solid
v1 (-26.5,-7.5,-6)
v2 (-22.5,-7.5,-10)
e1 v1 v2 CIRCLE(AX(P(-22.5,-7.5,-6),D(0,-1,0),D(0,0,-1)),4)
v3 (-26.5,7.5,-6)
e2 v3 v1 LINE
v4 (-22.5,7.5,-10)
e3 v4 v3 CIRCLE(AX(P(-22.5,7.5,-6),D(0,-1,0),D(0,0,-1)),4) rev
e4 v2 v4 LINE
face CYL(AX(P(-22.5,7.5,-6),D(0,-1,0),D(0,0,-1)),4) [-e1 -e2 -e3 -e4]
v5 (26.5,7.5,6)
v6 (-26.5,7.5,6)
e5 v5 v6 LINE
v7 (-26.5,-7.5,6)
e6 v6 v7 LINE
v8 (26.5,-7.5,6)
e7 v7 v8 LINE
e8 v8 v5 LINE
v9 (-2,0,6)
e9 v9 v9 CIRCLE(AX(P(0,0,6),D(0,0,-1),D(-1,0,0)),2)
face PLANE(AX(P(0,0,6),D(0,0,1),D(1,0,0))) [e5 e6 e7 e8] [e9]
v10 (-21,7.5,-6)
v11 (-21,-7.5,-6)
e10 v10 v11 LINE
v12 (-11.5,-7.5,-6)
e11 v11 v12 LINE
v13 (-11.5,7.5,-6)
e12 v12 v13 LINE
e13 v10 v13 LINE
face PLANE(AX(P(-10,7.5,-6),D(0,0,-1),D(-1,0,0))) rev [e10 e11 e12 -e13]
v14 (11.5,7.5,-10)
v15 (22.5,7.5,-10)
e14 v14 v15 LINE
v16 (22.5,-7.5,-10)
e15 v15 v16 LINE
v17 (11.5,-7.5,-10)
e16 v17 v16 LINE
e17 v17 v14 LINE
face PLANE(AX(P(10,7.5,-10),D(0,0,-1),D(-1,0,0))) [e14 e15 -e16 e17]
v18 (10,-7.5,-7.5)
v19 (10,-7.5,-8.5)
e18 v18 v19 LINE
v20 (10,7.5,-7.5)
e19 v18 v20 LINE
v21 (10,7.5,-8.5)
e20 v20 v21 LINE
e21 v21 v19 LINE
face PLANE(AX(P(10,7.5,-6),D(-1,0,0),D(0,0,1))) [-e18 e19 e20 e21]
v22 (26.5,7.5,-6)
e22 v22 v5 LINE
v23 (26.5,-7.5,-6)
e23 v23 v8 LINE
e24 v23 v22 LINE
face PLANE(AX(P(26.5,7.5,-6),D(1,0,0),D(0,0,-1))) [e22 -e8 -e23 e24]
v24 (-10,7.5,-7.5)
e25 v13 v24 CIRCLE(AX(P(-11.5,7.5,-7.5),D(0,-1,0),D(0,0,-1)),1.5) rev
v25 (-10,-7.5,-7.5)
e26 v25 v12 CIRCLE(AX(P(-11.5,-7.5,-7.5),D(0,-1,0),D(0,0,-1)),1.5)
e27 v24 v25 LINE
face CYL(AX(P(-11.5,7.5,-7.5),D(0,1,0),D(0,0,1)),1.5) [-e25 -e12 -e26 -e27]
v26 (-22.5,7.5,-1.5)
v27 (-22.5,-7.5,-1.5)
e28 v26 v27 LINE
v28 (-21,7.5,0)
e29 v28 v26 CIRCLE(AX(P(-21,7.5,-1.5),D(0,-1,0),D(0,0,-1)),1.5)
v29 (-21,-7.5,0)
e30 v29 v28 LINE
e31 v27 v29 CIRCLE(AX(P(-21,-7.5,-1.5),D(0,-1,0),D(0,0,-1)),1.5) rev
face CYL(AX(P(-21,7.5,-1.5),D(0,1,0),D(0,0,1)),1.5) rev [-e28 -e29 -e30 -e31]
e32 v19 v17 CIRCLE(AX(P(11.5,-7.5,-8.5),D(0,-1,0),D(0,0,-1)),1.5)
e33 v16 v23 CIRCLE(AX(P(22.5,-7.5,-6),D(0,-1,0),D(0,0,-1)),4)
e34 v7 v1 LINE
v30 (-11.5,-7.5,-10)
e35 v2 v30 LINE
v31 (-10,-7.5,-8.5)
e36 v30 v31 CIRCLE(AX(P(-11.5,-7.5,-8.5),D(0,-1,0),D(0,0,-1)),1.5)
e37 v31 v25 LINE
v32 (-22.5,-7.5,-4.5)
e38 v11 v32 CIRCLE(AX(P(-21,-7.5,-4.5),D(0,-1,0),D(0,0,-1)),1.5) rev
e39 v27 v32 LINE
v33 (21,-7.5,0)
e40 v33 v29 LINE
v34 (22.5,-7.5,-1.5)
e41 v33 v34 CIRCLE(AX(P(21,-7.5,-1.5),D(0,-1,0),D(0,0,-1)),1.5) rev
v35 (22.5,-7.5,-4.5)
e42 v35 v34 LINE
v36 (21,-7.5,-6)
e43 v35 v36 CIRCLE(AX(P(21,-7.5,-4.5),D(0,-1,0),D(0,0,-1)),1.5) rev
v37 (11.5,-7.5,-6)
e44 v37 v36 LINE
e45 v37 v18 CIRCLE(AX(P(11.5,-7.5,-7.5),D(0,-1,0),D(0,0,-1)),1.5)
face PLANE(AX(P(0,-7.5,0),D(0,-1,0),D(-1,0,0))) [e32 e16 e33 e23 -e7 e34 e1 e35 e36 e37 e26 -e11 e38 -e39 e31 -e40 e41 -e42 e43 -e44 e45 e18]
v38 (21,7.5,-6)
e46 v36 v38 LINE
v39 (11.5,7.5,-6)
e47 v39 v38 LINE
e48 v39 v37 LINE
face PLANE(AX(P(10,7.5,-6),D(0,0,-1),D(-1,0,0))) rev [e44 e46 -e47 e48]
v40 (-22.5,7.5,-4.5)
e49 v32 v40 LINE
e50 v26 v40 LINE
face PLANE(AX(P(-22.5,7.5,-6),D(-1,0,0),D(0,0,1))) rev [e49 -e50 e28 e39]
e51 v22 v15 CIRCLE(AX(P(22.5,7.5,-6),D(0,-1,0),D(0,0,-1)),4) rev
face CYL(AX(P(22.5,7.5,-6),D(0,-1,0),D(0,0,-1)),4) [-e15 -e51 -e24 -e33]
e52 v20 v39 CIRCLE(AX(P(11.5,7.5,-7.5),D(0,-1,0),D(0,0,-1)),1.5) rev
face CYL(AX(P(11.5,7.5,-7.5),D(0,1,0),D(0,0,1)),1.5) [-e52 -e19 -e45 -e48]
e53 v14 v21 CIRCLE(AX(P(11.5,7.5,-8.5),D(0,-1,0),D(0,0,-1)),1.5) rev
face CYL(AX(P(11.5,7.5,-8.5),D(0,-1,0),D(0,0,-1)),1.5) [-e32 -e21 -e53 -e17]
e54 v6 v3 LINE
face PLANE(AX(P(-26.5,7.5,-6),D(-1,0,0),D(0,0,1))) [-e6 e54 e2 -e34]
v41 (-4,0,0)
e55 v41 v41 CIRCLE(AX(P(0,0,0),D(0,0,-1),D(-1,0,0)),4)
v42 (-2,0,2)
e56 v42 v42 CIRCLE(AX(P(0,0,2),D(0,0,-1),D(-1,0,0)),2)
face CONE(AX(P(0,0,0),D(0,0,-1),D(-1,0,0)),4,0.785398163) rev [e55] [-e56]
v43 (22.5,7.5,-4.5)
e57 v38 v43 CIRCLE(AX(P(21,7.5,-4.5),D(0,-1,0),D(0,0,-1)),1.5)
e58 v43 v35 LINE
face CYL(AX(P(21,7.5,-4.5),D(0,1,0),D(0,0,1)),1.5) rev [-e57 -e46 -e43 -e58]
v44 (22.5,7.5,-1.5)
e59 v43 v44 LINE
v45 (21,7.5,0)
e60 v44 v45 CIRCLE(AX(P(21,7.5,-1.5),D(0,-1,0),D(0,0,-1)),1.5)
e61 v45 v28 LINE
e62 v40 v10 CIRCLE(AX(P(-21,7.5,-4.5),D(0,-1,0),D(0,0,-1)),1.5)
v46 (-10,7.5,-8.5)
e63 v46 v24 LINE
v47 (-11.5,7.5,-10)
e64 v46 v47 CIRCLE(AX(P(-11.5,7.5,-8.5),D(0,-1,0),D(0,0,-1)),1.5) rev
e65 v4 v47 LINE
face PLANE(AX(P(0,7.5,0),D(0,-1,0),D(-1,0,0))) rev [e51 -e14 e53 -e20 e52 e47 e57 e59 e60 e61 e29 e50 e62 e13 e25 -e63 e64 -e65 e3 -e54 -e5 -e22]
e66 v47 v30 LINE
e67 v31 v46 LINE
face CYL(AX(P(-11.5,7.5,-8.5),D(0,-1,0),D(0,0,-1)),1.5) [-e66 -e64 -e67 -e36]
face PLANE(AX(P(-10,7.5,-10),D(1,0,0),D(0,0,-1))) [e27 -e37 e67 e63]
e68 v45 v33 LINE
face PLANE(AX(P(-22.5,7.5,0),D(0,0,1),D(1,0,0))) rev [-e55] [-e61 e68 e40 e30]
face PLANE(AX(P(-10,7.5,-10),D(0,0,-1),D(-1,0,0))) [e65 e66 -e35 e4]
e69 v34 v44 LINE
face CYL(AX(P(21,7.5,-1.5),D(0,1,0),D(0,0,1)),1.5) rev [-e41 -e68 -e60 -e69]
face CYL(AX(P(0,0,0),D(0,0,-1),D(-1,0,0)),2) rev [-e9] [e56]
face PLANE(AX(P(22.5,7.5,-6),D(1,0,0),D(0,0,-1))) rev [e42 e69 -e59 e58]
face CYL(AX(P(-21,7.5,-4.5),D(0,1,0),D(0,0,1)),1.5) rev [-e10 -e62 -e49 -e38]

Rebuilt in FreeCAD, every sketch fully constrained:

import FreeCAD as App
import Part
import Sketcher


def edges_at(feature, points):
    """Names of the edges that pass closest to the given points."""
    edges = feature.Shape.Edges
    near = lambda p: min(range(len(edges)), key=lambda i: edges[i].distToShape(Part.Vertex(*p))[0])
    return sorted({f"Edge{near(p) + 1}" for p in points})

doc = App.newDocument("Part")
body = doc.addObject("PartDesign::Body", "Body")

# Sketch on XZ plane
sketch1 = doc.addObject("Sketcher::SketchObject", "Sketch")
body.addObject(sketch1)
sketch1.AttachmentSupport = (doc.XZ_Plane, [""])
sketch1.MapMode = "FlatFace"
sketch1.addGeometry([
    Part.LineSegment(App.Vector(-22.5, -6, 0), App.Vector(-10, -6, 0)),  # 0
    Part.LineSegment(App.Vector(-10, -6, 0), App.Vector(-10, -10, 0)),  # 1
    Part.LineSegment(App.Vector(-10, -10, 0), App.Vector(-26.5, -10, 0)),  # 2
    Part.LineSegment(App.Vector(-26.5, -10, 0), App.Vector(-26.5, 4, 0)),  # 3
    Part.LineSegment(App.Vector(-26.5, 4, 0), App.Vector(26.5, 4, 0)),  # 4
    Part.LineSegment(App.Vector(26.5, 4, 0), App.Vector(26.5, -10, 0)),  # 5
    Part.LineSegment(App.Vector(26.5, -10, 0), App.Vector(10, -10, 0)),  # 6
    Part.LineSegment(App.Vector(10, -10, 0), App.Vector(10, -6, 0)),  # 7
    Part.LineSegment(App.Vector(10, -6, 0), App.Vector(22.5, -6, 0)),  # 8
    Part.LineSegment(App.Vector(22.5, -6, 0), App.Vector(22.5, 0, 0)),  # 9
    Part.LineSegment(App.Vector(22.5, 0, 0), App.Vector(-22.5, 0, 0)),  # 10
    Part.LineSegment(App.Vector(-22.5, 0, 0), App.Vector(-22.5, -6, 0)),  # 11
], False)
sketch1.addConstraint([
    Sketcher.Constraint("Coincident", 0, 2, 1, 1),
    Sketcher.Constraint("Coincident", 1, 2, 2, 1),
    Sketcher.Constraint("Coincident", 2, 2, 3, 1),
    Sketcher.Constraint("Coincident", 3, 2, 4, 1),
    Sketcher.Constraint("Coincident", 4, 2, 5, 1),
    Sketcher.Constraint("Coincident", 5, 2, 6, 1),
    Sketcher.Constraint("Coincident", 6, 2, 7, 1),
    Sketcher.Constraint("Coincident", 7, 2, 8, 1),
    Sketcher.Constraint("Coincident", 8, 2, 9, 1),
    Sketcher.Constraint("Coincident", 9, 2, 10, 1),
    Sketcher.Constraint("Coincident", 10, 2, 11, 1),
    Sketcher.Constraint("Coincident", 11, 2, 0, 1),
    Sketcher.Constraint("Horizontal", 0),
    Sketcher.Constraint("Vertical", 1),
    Sketcher.Constraint("Horizontal", 2),
    Sketcher.Constraint("Vertical", 3),
    Sketcher.Constraint("Horizontal", 4),
    Sketcher.Constraint("Vertical", 5),
    Sketcher.Constraint("Horizontal", 6),
    Sketcher.Constraint("Vertical", 7),
    Sketcher.Constraint("Horizontal", 8),
    Sketcher.Constraint("Vertical", 9),
    Sketcher.Constraint("Horizontal", 10),
    Sketcher.Constraint("Vertical", 11),
    Sketcher.Constraint("Symmetric", 9, 2, 10, 2, -1, 1),
    Sketcher.Constraint("Symmetric", 2, 2, 5, 2, -2),
    Sketcher.Constraint("Symmetric", 0, 2, 7, 2, -2),
    Sketcher.Constraint("DistanceX", 4, 1, 4, 2, 53.0),
    Sketcher.Constraint("DistanceX", 10, 2, 10, 1, 45.0),
    Sketcher.Constraint("DistanceY", 1, 2, 1, 1, 4.0),
    Sketcher.Constraint("DistanceY", 3, 1, 3, 2, 14.0),
    Sketcher.Constraint("DistanceY", 9, 1, 9, 2, 6.0),
    Sketcher.Constraint("DistanceX", 0, 1, 0, 2, 12.5),
])
pad1 = doc.addObject("PartDesign::Pad", "Pad")
body.addObject(pad1)
pad1.Profile = sketch1
pad1.Length = 15
pad1.Midplane = True

# Sketch on XY plane
sketch2 = doc.addObject("Sketcher::SketchObject", "Sketch001")
body.addObject(sketch2)
sketch2.AttachmentSupport = (doc.XY_Plane, [""])
sketch2.MapMode = "FlatFace"
sketch2.AttachmentOffset = App.Placement(App.Vector(0, 0, 4), App.Rotation())
sketch2.addGeometry([
    Part.LineSegment(App.Vector(-26.5, 7.5, 0), App.Vector(-26.5, -7.5, 0)),
    Part.LineSegment(App.Vector(-26.5, -7.5, 0), App.Vector(26.5, -7.5, 0)),
    Part.LineSegment(App.Vector(26.5, -7.5, 0), App.Vector(26.5, 7.5, 0)),
    Part.LineSegment(App.Vector(26.5, 7.5, 0), App.Vector(-26.5, 7.5, 0)),
], False)
sketch2.addConstraint([
    Sketcher.Constraint("Coincident", 0, 2, 1, 1),
    Sketcher.Constraint("Coincident", 1, 2, 2, 1),
    Sketcher.Constraint("Coincident", 2, 2, 3, 1),
    Sketcher.Constraint("Coincident", 3, 2, 0, 1),
    Sketcher.Constraint("Vertical", 0),
    Sketcher.Constraint("Horizontal", 1),
    Sketcher.Constraint("Vertical", 2),
    Sketcher.Constraint("Horizontal", 3),
    Sketcher.Constraint("Symmetric", 0, 2, 2, 2, -1, 1),
    Sketcher.Constraint("DistanceX", 1, 1, 1, 2, 53.0),
    Sketcher.Constraint("DistanceY", 0, 2, 0, 1, 15.0),
])
pad2 = doc.addObject("PartDesign::Pad", "Pad001")
body.addObject(pad2)
pad2.Profile = sketch2
pad2.Length = 2

# Sketch on XY plane
sketch3 = doc.addObject("Sketcher::SketchObject", "Sketch002")
body.addObject(sketch3)
sketch3.AttachmentSupport = (doc.XY_Plane, [""])
sketch3.MapMode = "FlatFace"
sketch3.addGeometry(Part.Circle(App.Vector(0, 0, 0), App.Vector(0, 0, 1), 2), False)
sketch3.addConstraint([
    Sketcher.Constraint("Coincident", 0, 3, -1, 1),
    Sketcher.Constraint("Diameter", 0, 4.0),
])
doc.recompute()
hole = doc.addObject("PartDesign::Hole", "Hole")
body.addObject(hole)
hole.Profile = sketch3
hole.ThreadType = "None"
hole.Diameter = 4
hole.DepthType = "ThroughAll"
hole.HoleCutType = "Countersink"
hole.HoleCutDiameter = 8
hole.HoleCutCountersinkAngle = 90
hole.Reversed = True
doc.recompute()

fillet = doc.addObject("PartDesign::Fillet", "Fillet")
body.addObject(fillet)
fillet.Base = (hole, edges_at(hole, [
    (-22.5, 0, -6),
    (-22.5, 0, 0),
    (22.5, 0, 0),
    (22.5, 0, -6),
    (10, 0, -6),
    (10, 0, -10),
    (-10, 0, -10),
    (-10, 0, -6),
]))
fillet.Radius = 1.5
doc.recompute()

fillet2 = doc.addObject("PartDesign::Fillet", "Fillet001")
body.addObject(fillet2)
fillet2.Base = (fillet, edges_at(fillet, [(26.5, 0, -10), (-26.5, 0, -10)]))
fillet2.Radius = 4

doc.recompute()
